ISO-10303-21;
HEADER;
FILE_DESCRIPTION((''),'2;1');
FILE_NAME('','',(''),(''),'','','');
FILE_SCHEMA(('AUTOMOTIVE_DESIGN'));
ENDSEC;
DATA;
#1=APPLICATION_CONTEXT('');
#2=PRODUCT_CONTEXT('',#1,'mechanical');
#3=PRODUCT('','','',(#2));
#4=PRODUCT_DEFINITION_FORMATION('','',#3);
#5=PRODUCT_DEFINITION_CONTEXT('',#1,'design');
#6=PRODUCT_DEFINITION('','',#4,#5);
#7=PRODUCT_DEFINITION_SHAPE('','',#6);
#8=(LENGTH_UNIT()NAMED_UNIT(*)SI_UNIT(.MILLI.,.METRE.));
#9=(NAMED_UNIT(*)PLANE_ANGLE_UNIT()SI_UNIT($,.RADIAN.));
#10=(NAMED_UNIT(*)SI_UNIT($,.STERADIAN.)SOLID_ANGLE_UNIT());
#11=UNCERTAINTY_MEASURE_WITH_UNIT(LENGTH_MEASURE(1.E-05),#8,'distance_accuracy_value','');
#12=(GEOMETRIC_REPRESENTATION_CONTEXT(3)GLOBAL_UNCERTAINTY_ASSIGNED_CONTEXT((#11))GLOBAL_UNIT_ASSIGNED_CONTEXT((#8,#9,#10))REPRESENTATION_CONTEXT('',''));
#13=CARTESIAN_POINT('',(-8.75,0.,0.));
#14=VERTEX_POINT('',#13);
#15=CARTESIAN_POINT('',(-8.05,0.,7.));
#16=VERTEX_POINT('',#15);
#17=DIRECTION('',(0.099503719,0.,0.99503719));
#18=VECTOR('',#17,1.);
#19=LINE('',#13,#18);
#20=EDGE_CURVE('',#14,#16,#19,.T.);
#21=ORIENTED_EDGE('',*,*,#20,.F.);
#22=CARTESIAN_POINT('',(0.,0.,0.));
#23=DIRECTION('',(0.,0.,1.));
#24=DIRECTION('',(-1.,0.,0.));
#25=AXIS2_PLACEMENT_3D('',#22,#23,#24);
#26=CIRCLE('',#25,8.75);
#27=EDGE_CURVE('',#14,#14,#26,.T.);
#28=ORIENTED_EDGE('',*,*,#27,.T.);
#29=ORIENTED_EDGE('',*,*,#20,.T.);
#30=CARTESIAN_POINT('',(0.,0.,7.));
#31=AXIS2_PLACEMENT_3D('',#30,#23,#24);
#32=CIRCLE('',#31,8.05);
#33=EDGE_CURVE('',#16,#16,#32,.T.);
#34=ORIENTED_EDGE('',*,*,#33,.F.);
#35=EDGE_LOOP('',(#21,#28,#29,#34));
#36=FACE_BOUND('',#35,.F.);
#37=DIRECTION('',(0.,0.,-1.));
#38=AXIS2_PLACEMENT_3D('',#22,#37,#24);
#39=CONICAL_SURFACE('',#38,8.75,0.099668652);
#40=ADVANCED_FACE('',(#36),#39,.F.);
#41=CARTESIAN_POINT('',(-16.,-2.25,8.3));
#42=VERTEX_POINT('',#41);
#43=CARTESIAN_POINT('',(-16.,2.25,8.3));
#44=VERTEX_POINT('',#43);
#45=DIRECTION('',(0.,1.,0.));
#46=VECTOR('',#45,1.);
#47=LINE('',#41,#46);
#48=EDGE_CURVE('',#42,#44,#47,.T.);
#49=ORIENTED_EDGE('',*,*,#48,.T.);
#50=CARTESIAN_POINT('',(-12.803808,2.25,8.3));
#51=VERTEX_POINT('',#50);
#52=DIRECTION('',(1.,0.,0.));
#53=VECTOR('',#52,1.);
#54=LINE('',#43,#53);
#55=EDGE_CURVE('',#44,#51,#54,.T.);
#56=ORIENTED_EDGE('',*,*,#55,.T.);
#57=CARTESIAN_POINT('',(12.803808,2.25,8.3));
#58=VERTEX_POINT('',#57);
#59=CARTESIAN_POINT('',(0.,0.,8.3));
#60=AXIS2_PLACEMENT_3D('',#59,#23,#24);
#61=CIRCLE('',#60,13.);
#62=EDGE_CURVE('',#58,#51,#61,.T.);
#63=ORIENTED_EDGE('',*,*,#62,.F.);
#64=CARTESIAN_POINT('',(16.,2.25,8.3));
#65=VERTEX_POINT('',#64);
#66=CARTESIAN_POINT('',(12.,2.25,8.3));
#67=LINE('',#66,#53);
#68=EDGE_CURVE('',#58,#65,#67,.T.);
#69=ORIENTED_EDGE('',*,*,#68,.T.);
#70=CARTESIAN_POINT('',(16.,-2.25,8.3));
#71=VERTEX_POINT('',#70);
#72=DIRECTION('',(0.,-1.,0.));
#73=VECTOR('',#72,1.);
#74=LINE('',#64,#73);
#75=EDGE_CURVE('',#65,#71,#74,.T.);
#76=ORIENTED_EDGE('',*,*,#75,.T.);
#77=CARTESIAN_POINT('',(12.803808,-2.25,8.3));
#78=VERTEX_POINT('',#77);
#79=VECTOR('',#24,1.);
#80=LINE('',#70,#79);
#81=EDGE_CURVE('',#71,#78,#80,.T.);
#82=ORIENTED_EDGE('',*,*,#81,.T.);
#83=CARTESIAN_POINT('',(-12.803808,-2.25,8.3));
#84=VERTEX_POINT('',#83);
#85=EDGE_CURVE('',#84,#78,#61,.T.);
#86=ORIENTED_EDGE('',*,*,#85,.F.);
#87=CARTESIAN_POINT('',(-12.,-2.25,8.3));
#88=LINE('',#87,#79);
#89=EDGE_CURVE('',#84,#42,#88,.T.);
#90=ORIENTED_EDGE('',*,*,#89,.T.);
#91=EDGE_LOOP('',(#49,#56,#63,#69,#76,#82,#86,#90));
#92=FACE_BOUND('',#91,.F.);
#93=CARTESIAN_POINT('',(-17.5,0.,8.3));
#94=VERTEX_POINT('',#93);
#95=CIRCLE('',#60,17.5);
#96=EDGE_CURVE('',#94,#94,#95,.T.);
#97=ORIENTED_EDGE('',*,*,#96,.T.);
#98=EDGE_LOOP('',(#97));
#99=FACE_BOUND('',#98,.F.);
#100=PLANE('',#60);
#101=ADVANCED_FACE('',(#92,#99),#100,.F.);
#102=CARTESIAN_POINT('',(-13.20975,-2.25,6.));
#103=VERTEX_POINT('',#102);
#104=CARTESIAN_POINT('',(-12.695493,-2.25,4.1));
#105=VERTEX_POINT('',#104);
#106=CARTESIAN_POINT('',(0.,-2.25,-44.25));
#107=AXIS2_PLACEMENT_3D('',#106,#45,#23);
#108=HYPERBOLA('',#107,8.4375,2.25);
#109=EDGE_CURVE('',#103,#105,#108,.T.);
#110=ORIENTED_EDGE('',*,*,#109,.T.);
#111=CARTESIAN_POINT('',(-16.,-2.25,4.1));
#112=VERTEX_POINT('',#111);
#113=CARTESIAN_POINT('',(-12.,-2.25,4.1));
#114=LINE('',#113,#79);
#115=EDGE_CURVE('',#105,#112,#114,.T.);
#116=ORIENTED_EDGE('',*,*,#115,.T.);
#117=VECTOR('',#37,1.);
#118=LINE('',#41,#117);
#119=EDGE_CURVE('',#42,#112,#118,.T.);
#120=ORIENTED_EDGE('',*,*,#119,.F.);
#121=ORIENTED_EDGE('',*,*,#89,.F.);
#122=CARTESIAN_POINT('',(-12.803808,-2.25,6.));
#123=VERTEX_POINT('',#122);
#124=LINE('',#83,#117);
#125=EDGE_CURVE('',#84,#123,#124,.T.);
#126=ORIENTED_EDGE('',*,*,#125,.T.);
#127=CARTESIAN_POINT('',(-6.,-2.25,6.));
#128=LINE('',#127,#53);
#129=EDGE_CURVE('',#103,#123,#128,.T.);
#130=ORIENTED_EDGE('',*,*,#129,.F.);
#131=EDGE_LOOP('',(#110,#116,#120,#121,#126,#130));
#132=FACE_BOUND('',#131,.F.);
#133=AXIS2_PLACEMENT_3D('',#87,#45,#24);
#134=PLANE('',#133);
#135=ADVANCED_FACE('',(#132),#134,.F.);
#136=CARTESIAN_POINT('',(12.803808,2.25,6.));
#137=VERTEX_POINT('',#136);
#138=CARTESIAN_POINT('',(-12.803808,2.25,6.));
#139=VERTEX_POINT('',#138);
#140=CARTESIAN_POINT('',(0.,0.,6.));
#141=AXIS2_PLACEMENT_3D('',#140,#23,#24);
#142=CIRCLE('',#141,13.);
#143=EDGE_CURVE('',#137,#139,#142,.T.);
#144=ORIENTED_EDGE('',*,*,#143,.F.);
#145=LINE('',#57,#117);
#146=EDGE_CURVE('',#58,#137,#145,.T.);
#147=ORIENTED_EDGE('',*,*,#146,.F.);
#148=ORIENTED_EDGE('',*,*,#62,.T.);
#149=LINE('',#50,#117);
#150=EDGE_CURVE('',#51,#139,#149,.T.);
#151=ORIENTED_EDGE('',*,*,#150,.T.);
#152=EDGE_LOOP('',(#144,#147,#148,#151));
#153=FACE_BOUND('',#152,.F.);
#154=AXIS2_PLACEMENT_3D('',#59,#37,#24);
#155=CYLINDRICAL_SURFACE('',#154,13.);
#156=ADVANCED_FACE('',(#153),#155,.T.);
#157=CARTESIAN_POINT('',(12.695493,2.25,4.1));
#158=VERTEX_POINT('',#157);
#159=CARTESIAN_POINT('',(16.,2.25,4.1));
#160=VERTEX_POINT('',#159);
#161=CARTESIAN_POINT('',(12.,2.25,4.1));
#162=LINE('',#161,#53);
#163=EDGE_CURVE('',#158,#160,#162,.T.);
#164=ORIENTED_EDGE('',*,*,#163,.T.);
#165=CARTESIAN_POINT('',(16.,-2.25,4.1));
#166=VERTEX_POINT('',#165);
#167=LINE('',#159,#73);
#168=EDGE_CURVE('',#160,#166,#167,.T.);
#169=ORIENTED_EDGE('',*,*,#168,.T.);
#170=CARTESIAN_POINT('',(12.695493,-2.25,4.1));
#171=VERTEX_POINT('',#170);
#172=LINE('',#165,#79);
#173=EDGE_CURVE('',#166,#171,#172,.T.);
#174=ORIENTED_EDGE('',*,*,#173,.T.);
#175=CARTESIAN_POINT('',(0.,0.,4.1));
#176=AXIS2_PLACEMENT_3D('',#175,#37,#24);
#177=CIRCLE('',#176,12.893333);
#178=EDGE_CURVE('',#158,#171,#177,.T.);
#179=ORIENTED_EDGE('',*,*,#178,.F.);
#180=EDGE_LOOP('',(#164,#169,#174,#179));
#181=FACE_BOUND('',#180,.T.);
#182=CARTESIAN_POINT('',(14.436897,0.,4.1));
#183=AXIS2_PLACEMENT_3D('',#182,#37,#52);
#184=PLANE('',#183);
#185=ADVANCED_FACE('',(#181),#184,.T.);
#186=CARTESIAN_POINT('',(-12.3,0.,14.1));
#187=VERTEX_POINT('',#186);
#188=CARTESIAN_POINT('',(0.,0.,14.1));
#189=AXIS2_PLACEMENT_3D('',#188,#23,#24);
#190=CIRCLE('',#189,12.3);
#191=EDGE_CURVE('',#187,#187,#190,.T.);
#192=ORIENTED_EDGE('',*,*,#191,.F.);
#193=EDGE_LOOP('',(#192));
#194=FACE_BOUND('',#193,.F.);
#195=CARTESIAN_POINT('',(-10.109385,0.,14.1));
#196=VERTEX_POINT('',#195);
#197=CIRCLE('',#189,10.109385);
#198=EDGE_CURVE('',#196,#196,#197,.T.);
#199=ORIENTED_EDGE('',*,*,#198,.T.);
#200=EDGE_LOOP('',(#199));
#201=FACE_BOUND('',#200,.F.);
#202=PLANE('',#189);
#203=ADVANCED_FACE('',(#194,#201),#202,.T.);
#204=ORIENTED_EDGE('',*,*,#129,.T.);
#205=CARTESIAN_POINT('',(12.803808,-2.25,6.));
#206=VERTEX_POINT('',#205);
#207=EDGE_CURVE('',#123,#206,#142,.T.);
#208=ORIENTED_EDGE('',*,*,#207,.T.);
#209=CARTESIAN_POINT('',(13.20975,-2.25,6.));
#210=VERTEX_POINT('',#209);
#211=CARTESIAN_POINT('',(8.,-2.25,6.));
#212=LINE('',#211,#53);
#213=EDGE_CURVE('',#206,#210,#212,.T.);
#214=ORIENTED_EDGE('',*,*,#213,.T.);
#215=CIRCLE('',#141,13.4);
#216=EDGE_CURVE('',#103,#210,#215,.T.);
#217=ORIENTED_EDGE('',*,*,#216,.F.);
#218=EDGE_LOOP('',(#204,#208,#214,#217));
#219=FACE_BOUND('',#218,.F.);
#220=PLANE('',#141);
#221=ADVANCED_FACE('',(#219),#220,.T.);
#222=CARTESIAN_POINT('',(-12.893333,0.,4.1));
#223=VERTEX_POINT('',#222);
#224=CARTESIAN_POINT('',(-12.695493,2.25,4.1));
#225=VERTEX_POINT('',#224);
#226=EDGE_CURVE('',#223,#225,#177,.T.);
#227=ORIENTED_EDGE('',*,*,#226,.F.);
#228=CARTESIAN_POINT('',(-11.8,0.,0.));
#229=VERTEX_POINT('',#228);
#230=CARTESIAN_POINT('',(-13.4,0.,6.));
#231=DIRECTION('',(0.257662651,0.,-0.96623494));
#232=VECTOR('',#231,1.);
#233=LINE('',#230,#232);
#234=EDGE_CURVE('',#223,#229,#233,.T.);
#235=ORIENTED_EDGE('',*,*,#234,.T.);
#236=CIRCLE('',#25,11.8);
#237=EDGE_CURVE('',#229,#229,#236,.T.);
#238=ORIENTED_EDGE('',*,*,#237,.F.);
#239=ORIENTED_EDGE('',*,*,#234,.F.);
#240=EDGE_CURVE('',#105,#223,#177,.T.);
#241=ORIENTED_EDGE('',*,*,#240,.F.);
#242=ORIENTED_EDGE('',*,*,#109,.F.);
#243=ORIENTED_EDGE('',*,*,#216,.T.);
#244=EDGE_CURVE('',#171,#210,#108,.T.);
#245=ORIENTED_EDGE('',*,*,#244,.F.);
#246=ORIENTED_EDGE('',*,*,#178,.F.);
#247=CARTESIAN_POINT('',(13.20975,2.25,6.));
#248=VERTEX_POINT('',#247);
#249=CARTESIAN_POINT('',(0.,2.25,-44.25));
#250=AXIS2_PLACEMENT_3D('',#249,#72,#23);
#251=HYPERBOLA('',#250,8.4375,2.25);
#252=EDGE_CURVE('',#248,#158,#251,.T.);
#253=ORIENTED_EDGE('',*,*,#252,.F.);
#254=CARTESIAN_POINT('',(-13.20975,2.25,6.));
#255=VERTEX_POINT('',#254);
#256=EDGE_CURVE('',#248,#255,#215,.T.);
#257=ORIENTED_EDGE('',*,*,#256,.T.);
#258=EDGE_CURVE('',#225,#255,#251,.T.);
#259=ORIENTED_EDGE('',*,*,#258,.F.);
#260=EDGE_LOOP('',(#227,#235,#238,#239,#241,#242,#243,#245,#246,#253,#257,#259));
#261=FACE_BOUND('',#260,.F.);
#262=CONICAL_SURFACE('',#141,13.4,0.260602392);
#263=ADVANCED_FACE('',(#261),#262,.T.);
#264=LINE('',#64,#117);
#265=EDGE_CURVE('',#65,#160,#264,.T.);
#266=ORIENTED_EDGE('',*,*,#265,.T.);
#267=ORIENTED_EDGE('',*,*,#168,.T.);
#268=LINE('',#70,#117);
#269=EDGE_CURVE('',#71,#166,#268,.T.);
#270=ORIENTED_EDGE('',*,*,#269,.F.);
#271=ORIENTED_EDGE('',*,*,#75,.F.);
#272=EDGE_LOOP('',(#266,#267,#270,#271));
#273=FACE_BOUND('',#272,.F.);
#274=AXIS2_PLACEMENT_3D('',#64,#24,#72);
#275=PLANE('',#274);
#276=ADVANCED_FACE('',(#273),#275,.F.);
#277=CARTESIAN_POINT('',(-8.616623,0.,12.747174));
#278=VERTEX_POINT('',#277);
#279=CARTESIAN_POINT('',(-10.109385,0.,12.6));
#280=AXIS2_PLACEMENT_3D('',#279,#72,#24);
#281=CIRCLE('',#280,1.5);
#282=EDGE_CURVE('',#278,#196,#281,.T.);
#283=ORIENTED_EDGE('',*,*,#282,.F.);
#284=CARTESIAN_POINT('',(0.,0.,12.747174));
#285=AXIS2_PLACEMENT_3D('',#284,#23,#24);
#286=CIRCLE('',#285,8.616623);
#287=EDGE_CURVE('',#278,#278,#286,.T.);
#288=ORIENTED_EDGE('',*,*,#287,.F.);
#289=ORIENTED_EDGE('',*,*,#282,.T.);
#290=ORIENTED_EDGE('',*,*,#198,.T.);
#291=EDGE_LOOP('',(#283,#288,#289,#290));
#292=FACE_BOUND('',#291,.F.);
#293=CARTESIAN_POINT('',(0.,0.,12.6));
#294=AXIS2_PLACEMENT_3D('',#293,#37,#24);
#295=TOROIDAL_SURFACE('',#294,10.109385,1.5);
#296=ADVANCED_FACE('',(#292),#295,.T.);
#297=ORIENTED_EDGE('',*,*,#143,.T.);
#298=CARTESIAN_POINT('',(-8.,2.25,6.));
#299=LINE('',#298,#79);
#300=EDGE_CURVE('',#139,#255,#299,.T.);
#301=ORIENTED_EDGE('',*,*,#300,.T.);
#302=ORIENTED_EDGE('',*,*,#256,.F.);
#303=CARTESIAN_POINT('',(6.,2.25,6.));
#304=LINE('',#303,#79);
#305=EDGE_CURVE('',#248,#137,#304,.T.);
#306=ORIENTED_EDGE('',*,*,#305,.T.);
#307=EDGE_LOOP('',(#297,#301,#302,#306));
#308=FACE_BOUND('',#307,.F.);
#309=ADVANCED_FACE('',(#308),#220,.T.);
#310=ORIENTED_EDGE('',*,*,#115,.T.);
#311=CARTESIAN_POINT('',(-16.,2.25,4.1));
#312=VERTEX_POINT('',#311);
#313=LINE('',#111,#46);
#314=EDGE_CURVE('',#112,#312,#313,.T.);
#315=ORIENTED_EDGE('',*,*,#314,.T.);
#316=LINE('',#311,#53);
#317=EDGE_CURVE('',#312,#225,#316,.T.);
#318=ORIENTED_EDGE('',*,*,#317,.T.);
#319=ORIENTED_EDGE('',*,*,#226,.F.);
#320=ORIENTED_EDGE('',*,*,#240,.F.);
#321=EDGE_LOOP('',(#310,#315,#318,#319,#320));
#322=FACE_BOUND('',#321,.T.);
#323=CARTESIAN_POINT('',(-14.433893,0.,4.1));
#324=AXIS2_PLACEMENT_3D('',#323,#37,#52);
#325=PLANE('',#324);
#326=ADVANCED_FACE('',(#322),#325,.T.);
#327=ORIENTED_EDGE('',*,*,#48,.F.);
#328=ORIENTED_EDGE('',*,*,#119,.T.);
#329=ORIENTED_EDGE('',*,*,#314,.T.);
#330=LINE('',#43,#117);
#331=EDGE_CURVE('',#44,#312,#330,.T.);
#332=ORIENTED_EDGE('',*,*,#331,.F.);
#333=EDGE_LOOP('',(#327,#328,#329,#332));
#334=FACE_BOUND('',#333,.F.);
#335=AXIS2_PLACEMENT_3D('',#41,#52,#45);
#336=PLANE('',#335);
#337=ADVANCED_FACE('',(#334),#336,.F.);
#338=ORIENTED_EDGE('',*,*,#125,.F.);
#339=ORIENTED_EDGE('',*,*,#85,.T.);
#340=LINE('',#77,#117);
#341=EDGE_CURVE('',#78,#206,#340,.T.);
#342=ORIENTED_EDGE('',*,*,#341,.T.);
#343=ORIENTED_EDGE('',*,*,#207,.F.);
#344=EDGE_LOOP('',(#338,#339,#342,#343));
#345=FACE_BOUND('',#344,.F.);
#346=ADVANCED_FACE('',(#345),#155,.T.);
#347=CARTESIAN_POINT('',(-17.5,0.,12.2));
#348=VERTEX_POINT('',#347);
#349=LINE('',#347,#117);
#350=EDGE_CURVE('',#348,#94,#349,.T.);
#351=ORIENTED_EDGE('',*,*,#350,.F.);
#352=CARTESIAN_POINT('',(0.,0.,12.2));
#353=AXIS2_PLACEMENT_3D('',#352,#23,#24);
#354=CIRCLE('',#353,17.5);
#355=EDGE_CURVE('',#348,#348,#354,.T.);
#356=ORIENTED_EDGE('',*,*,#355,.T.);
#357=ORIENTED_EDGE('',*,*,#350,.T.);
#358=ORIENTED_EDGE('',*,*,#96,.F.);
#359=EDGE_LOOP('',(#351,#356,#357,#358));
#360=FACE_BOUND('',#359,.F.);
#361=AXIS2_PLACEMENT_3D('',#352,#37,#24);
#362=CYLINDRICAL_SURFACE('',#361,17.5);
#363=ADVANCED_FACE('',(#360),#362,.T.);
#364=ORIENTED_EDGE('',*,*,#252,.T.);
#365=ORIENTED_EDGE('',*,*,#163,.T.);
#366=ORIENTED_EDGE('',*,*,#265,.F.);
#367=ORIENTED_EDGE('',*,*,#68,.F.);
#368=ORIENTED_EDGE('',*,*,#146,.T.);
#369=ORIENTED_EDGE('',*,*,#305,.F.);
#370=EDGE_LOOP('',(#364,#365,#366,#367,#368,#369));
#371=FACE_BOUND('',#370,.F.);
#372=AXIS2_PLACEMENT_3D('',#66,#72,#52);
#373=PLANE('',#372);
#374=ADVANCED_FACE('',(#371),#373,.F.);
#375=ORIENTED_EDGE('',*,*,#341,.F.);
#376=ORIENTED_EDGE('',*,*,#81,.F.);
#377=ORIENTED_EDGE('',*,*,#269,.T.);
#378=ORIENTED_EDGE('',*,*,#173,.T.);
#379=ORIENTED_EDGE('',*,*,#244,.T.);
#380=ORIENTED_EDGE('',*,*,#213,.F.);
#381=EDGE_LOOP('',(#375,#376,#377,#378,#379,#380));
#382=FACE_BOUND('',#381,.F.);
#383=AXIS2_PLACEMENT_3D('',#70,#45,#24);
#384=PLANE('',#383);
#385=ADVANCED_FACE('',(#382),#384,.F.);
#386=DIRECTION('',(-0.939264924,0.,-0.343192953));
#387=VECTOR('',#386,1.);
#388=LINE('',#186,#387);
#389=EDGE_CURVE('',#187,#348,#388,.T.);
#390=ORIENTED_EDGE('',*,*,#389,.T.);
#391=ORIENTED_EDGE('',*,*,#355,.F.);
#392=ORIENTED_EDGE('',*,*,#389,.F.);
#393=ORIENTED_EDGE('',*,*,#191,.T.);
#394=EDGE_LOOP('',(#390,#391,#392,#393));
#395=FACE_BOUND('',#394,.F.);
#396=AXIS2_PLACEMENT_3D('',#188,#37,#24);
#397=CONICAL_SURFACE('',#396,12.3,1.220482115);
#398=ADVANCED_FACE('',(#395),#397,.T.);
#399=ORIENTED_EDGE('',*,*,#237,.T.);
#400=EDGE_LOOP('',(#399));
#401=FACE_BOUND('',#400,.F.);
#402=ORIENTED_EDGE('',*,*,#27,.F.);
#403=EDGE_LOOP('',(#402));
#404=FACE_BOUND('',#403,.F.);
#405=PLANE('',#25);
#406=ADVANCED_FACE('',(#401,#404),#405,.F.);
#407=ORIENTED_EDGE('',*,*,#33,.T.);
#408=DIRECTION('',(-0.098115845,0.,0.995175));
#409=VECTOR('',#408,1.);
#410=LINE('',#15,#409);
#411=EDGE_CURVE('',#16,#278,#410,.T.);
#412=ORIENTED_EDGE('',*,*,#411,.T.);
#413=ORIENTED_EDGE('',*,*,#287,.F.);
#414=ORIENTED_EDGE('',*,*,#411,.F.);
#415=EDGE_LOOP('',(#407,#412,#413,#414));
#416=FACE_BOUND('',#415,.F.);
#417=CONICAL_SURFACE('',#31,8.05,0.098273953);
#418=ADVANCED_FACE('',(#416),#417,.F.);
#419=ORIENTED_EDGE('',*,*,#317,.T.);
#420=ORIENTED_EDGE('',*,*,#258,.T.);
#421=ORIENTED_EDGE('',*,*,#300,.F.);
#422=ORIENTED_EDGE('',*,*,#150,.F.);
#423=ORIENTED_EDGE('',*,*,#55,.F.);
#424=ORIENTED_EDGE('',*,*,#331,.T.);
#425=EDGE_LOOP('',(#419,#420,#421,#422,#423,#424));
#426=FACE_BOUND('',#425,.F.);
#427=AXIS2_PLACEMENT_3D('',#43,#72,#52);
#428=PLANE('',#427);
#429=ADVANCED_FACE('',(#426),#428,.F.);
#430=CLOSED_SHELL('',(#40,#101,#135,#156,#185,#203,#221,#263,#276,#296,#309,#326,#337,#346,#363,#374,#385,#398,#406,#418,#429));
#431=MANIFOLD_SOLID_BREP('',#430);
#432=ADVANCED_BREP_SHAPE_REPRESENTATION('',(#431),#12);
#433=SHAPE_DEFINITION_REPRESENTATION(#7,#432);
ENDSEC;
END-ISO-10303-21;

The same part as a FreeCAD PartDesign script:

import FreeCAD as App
import Part
import Sketcher
from FreeCAD import Vector


def edges_at(feature, points):
    """Names of the edges that pass closest to the given points."""
    edges = feature.Shape.Edges
    near = lambda p: min(range(len(edges)), key=lambda i: edges[i].distToShape(Part.Vertex(*p))[0])
    return sorted({f"Edge{near(p) + 1}" for p in points})


def add_polygon(sketch, points):
    """Adds a closed chain of lines whose ends are joined by coincident constraints."""
    first, n = sketch.GeometryCount, len(points)
    for a, b in zip(points, points[1:] + points[:1]):
        sketch.addGeometry(Part.LineSegment(App.Vector(*a, 0), App.Vector(*b, 0)), False)
    for i in range(n):
        sketch.addConstraint(Sketcher.Constraint("Coincident", first + i, 2, first + (i + 1) % n, 1))

doc = App.newDocument("Part")
body = doc.addObject("PartDesign::Body", "Body")

sketch1 = body.newObject("Sketcher::SketchObject", "Sketch")
sketch1.AttachmentSupport = (doc.getObject("XZ_Plane"), [""])
sketch1.MapMode = "FlatFace"
add_polygon(sketch1, [(-11.8, 0), (-8.75, 0), (-8.05, 7), (-8.75, 14.1), (-12.3, 14.1), (-17.5, 12.2), (-17.5, 8.3), (-13, 8.3), (-13, 6), (-13.4, 6)])
sketch1.addConstraint(Sketcher.Constraint("Horizontal", 0))
sketch1.addConstraint(Sketcher.Constraint("Horizontal", 3))
sketch1.addConstraint(Sketcher.Constraint("Vertical", 5))
sketch1.addConstraint(Sketcher.Constraint("Horizontal", 6))
sketch1.addConstraint(Sketcher.Constraint("Vertical", 7))
sketch1.addConstraint(Sketcher.Constraint("Horizontal", 8))
sketch1.addConstraint(Sketcher.Constraint("PointOnObject", 0, 2, -1))
sketch1.addConstraint(Sketcher.Constraint("Vertical", 0, 2, 2, 2))
sketch1.addConstraint(Sketcher.Constraint("DistanceX", 6, 1, 6, 2, 4.5))
sketch1.addConstraint(Sketcher.Constraint("DistanceX", 8, 2, 8, 1, 0.4))
sketch1.addConstraint(Sketcher.Constraint("DistanceY", 5, 2, 5, 1, 3.9))
sketch1.addConstraint(Sketcher.Constraint("DistanceY", 7, 2, 7, 1, 2.3))
sketch1.addConstraint(Sketcher.Constraint("DistanceY", -1, 1, 1, 2, 7.0))
sketch1.addConstraint(Sketcher.Constraint("DistanceX", 6, 2, -1, 1, 13.0))
sketch1.addConstraint(Sketcher.Constraint("DistanceY", -1, 1, 7, 2, 6.0))
sketch1.addConstraint(Sketcher.Constraint("DistanceX", 0, 1, 0, 2, 3.05))
sketch1.addConstraint(Sketcher.Constraint("DistanceX", 3, 2, 3, 1, 3.55))
sketch1.addConstraint(Sketcher.Constraint("DistanceY", -1, 1, 2, 2, 14.1))
sketch1.addConstraint(Sketcher.Constraint("DistanceX", 3, 2, -1, 1, 12.3))
sketch1.addConstraint(Sketcher.Constraint("DistanceX", 0, 2, 1, 2, 0.7))
revolution = body.newObject("PartDesign::Revolution", "Revolution")
revolution.Profile = sketch1
revolution.ReferenceAxis = (sketch1, ["V_Axis"])
revolution.Angle = 360
doc.recompute()

fillet = body.newObject("PartDesign::Fillet", "Fillet")
fillet.Base = (revolution, edges_at(revolution, [(8.75, 0, 14.1)]))
fillet.Radius = 1.5

sketch2 = body.newObject("Sketcher::SketchObject", "Sketch001")
sketch2.AttachmentSupport = (doc.getObject("XY_Plane"), [""])
sketch2.MapMode = "FlatFace"
sketch2.AttachmentOffset = App.Placement(Vector(0, 0, 8.3), App.Rotation())
add_polygon(sketch2, [(-16, -2.2), (-16, 2.2), (-12, 2.2), (-12, -2.2)])
add_polygon(sketch2, [(16, -2.2), (12, -2.2), (12, 2.2), (16, 2.2)])
sketch2.addConstraint(Sketcher.Constraint("Vertical", 0))
sketch2.addConstraint(Sketcher.Constraint("Horizontal", 1))
sketch2.addConstraint(Sketcher.Constraint("Vertical", 2))
sketch2.addConstraint(Sketcher.Constraint("Horizontal", 3))
sketch2.addConstraint(Sketcher.Constraint("Horizontal", 4))
sketch2.addConstraint(Sketcher.Constraint("Vertical", 5))
sketch2.addConstraint(Sketcher.Constraint("Horizontal", 6))
sketch2.addConstraint(Sketcher.Constraint("Vertical", 7))
sketch2.addConstraint(Sketcher.Constraint("Symmetric", 1, 2, 4, 2, -1, 1))
sketch2.addConstraint(Sketcher.Constraint("Symmetric", 3, 2, 6, 2, -1, 1))
sketch2.addConstraint(Sketcher.Constraint("Horizontal", 3, 2, 4, 2))
sketch2.addConstraint(Sketcher.Constraint("DistanceX", 1, 1, 1, 2, 4.0))
sketch2.addConstraint(Sketcher.Constraint("DistanceY", 0, 1, 0, 2, 4.5))
sketch2.addConstraint(Sketcher.Constraint("DistanceX", 0, 2, -1, 1, 16.0))
pad1 = body.newObject("PartDesign::Pad", "Pad")
pad1.Profile = sketch2
pad1.Length = 4.2
pad1.Reversed = True

doc.recompute()
